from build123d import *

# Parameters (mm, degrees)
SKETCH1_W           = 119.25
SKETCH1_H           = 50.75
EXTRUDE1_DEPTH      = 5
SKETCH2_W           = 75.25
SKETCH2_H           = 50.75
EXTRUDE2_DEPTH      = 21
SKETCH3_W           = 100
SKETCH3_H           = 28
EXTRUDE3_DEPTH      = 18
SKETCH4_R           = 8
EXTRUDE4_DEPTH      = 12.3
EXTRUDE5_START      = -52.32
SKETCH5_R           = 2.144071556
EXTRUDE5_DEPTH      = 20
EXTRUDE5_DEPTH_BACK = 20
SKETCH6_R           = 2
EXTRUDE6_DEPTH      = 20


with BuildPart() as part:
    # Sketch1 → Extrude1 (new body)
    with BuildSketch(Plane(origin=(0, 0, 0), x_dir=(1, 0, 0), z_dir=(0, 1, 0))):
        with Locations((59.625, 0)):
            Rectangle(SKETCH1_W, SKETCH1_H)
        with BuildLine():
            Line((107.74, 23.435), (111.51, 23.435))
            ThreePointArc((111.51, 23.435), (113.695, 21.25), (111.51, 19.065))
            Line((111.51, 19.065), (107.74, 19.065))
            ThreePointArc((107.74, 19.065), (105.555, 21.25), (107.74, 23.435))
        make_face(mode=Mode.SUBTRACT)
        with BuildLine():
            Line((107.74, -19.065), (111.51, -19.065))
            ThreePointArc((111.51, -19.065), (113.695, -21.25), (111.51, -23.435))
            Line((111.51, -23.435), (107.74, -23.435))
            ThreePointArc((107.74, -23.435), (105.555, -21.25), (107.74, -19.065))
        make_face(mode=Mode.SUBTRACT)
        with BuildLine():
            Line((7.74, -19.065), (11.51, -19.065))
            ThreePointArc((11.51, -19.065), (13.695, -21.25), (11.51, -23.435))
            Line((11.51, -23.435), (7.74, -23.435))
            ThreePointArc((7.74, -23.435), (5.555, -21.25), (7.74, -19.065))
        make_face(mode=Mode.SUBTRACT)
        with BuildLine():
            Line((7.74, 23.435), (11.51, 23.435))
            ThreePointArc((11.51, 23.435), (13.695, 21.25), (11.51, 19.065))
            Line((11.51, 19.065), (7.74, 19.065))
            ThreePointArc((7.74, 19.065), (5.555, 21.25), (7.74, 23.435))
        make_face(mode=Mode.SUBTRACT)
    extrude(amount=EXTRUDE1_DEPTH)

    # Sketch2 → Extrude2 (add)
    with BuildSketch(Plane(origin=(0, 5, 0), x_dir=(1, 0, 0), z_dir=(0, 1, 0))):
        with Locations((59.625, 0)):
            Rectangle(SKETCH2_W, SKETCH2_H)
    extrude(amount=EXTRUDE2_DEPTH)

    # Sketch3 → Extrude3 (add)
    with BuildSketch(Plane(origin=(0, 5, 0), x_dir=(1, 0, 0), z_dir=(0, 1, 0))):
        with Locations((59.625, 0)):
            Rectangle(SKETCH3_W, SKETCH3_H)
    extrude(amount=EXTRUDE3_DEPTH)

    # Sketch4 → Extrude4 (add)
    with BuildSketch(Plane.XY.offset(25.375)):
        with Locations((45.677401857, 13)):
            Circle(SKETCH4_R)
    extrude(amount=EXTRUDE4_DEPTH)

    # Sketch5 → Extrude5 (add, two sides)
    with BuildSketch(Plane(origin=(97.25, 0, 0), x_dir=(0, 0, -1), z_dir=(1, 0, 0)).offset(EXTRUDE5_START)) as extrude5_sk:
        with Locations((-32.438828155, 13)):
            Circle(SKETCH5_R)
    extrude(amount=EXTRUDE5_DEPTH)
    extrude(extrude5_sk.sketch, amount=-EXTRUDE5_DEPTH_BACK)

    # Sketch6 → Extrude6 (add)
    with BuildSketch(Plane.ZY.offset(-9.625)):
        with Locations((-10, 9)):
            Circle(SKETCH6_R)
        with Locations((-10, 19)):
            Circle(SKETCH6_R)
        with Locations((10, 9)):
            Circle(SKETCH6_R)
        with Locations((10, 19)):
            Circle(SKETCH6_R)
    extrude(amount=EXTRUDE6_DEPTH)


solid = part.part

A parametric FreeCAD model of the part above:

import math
import FreeCAD as App
import Part
import Sketcher
Q = App.Units.Quantity


def add_polygon(sketch, points):
    """Adds a closed chain of lines whose ends are joined by coincident constraints."""
    first, n = sketch.GeometryCount, len(points)
    for a, b in zip(points, points[1:] + points[:1]):
        sketch.addGeometry(Part.LineSegment(App.Vector(*a, 0), App.Vector(*b, 0)), False)
    for i in range(n):
        sketch.addConstraint(Sketcher.Constraint("Coincident", first + i, 2, first + (i + 1) % n, 1))

doc = App.newDocument("Part")
body = doc.addObject("PartDesign::Body", "Body")

# Sketch on XZ plane
sketch1 = body.newObject("Sketcher::SketchObject", "Sketch")
sketch1.AttachmentSupport = (doc.getObject("XZ_Plane"), [""])
sketch1.MapMode = "FlatFace"
add_polygon(sketch1, [(0, -25.4), (0, 25.4), (119.2, 25.4), (119.2, -25.4)])  # lines 0-3
sketch1.addGeometry(Part.ArcOfCircle(Part.Circle(App.Vector(7.7, 21.2, 0), App.Vector(0, 0, 1), 2.2), math.radians(90), math.radians(270)), False)  # 4
sketch1.addGeometry(Part.LineSegment(App.Vector(7.7, 19.1, 0), App.Vector(11.5, 19.1, 0)), False)  # 5
sketch1.addGeometry(Part.ArcOfCircle(Part.Circle(App.Vector(11.5, 21.2, 0), App.Vector(0, 0, 1), 2.2), math.radians(-90), math.radians(90)), False)  # 6
sketch1.addGeometry(Part.LineSegment(App.Vector(11.5, 23.4, 0), App.Vector(7.7, 23.4, 0)), False)  # 7
sketch1.addGeometry(Part.ArcOfCircle(Part.Circle(App.Vector(107.7, 21.2, 0), App.Vector(0, 0, 1), 2.2), math.radians(90), math.radians(270)), False)  # 8
sketch1.addGeometry(Part.LineSegment(App.Vector(107.7, 19.1, 0), App.Vector(111.5, 19.1, 0)), False)  # 9
sketch1.addGeometry(Part.ArcOfCircle(Part.Circle(App.Vector(111.5, 21.2, 0), App.Vector(0, 0, 1), 2.2), math.radians(-90), math.radians(90)), False)  # 10
sketch1.addGeometry(Part.LineSegment(App.Vector(111.5, 23.4, 0), App.Vector(107.7, 23.4, 0)), False)  # 11
sketch1.addGeometry(Part.ArcOfCircle(Part.Circle(App.Vector(7.7, -21.2, 0), App.Vector(0, 0, 1), 2.2), math.radians(90), math.radians(270)), False)  # 12
sketch1.addGeometry(Part.LineSegment(App.Vector(7.7, -23.4, 0), App.Vector(11.5, -23.4, 0)), False)  # 13
sketch1.addGeometry(Part.ArcOfCircle(Part.Circle(App.Vector(11.5, -21.2, 0), App.Vector(0, 0, 1), 2.2), math.radians(-90), math.radians(90)), False)  # 14
sketch1.addGeometry(Part.LineSegment(App.Vector(11.5, -19.1, 0), App.Vector(7.7, -19.1, 0)), False)  # 15
sketch1.addGeometry(Part.ArcOfCircle(Part.Circle(App.Vector(107.7, -21.2, 0), App.Vector(0, 0, 1), 2.2), math.radians(90), math.radians(270)), False)  # 16
sketch1.addGeometry(Part.LineSegment(App.Vector(107.7, -23.4, 0), App.Vector(111.5, -23.4, 0)), False)  # 17
sketch1.addGeometry(Part.ArcOfCircle(Part.Circle(App.Vector(111.5, -21.2, 0), App.Vector(0, 0, 1), 2.2), math.radians(-90), math.radians(90)), False)  # 18
sketch1.addGeometry(Part.LineSegment(App.Vector(111.5, -19.1, 0), App.Vector(107.7, -19.1, 0)), False)  # 19
sketch1.addConstraint([
    Sketcher.Constraint("Tangent", 4, 2, 5, 1),
    Sketcher.Constraint("Tangent", 5, 2, 6, 1),
    Sketcher.Constraint("Tangent", 6, 2, 7, 1),
    Sketcher.Constraint("Tangent", 7, 2, 4, 1),
    Sketcher.Constraint("Tangent", 8, 2, 9, 1),
    Sketcher.Constraint("Tangent", 9, 2, 10, 1),
    Sketcher.Constraint("Tangent", 10, 2, 11, 1),
    Sketcher.Constraint("Tangent", 11, 2, 8, 1),
    Sketcher.Constraint("Tangent", 12, 2, 13, 1),
    Sketcher.Constraint("Tangent", 13, 2, 14, 1),
    Sketcher.Constraint("Tangent", 14, 2, 15, 1),
    Sketcher.Constraint("Tangent", 15, 2, 12, 1),
    Sketcher.Constraint("Tangent", 16, 2, 17, 1),
    Sketcher.Constraint("Tangent", 17, 2, 18, 1),
    Sketcher.Constraint("Tangent", 18, 2, 19, 1),
    Sketcher.Constraint("Tangent", 19, 2, 16, 1),
    Sketcher.Constraint("Vertical", 0),
    Sketcher.Constraint("Horizontal", 1),
    Sketcher.Constraint("Vertical", 2),
    Sketcher.Constraint("Horizontal", 3),
    Sketcher.Constraint("Horizontal", 5),
    Sketcher.Constraint("Horizontal", 7),
    Sketcher.Constraint("Horizontal", 9),
    Sketcher.Constraint("Horizontal", 11),
    Sketcher.Constraint("Horizontal", 13),
    Sketcher.Constraint("Horizontal", 15),
    Sketcher.Constraint("Horizontal", 17),
    Sketcher.Constraint("Horizontal", 19),
    Sketcher.Constraint("Equal", 6, 8),
    Sketcher.Constraint("Equal", 10, 12),
    Sketcher.Constraint("Equal", 14, 16),
    Sketcher.Constraint("Symmetric", 0, 2, 3, 2, -1, 1),
    Sketcher.Constraint("Symmetric", 4, 3, 12, 3, -1),
    Sketcher.Constraint("Symmetric", 8, 3, 16, 3, -1),
    Sketcher.Constraint("Horizontal", 6, 3, 8, 3),
    Sketcher.Constraint("Vertical", 6, 3, 14, 3),
    Sketcher.Constraint("Vertical", 10, 3, 18, 3),
    Sketcher.Constraint("Equal", 7, 9),
    Sketcher.Constraint("Radius", 4, Q("2.185 mm")),
    Sketcher.Constraint("DistanceX", 4, 3, 8, 3, Q("100 mm")),
    Sketcher.Constraint("DistanceX", 1, 1, 1, 2, Q("119.25 mm")),
    Sketcher.Constraint("DistanceX", 5, 1, 5, 2, Q("3.77 mm")),
    Sketcher.Constraint("DistanceY", 0, 1, 0, 2, Q("50.75 mm")),
    Sketcher.Constraint("DistanceY", 12, 3, 4, 3, Q("42.5 mm")),
    Sketcher.Constraint("DistanceX", -1, 1, 4, 3, Q("7.74 mm")),
])
pad1 = body.newObject("PartDesign::Pad", "Pad")
pad1.Profile = sketch1
pad1.Length = 5
pad1.Reversed = True

# Sketch on XZ plane
sketch2 = body.newObject("Sketcher::SketchObject", "Sketch001")
sketch2.AttachmentSupport = (doc.getObject("XZ_Plane"), [""])
sketch2.MapMode = "FlatFace"
sketch2.AttachmentOffset = App.Placement(App.Vector(0, 0, -5), App.Rotation())
add_polygon(sketch2, [(22, -25), (22, 25), (97, 25), (97, -25)])  # lines 0-3
sketch2.addConstraint([
    Sketcher.Constraint("Vertical", 0),
    Sketcher.Constraint("Horizontal", 1),
    Sketcher.Constraint("Vertical", 2),
    Sketcher.Constraint("Horizontal", 3),
    Sketcher.Constraint("DistanceX", -1, 1, 0, 2, Q("22 mm")),
    Sketcher.Constraint("DistanceX", 1, 1, 1, 2, Q("75.25 mm")),
    Sketcher.Constraint("DistanceY", 0, 1, 0, 2, Q("50.75 mm")),
    Sketcher.Constraint("DistanceY", -1, 1, 0, 2, Q("25.375 mm")),
])
pad2 = body.newObject("PartDesign::Pad", "Pad001")
pad2.Profile = sketch2
pad2.Length = 21
pad2.Reversed = True

# Sketch on XZ plane
sketch3 = body.newObject("Sketcher::SketchObject", "Sketch002")
sketch3.AttachmentSupport = (doc.getObject("XZ_Plane"), [""])
sketch3.MapMode = "FlatFace"
sketch3.AttachmentOffset = App.Placement(App.Vector(0, 0, -5), App.Rotation())
add_polygon(sketch3, [(10, -14), (10, 14), (110, 14), (110, -14)])  # lines 0-3
sketch3.addConstraint([
    Sketcher.Constraint("Vertical", 0),
    Sketcher.Constraint("Horizontal", 1),
    Sketcher.Constraint("Vertical", 2),
    Sketcher.Constraint("Horizontal", 3),
    Sketcher.Constraint("DistanceX", 1, 1, 1, 2, Q("100 mm")),
    Sketcher.Constraint("DistanceY", 0, 1, 0, 2, Q("28 mm")),
    Sketcher.Constraint("DistanceY", -1, 1, 0, 2, Q("14 mm")),
    Sketcher.Constraint("DistanceX", -1, 1, 0, 2, Q("9.625 mm")),
])
pad3 = body.newObject("PartDesign::Pad", "Pad002")
pad3.Profile = sketch3
pad3.Length = 18
pad3.Reversed = True

# Sketch on XY plane
sketch4 = body.newObject("Sketcher::SketchObject", "Sketch003")
sketch4.AttachmentSupport = (doc.getObject("XY_Plane"), [""])
sketch4.MapMode = "FlatFace"
sketch4.AttachmentOffset = App.Placement(App.Vector(0, 0, 25.375), App.Rotation())
sketch4.addGeometry(Part.Circle(App.Vector(46, 13, 0), App.Vector(0, 0, 1), 8), False)
sketch4.addConstraint([
    Sketcher.Constraint("Diameter", 0, Q("16 mm")),
    Sketcher.Constraint("DistanceY", -1, 1, 0, 3, Q("13 mm")),
    Sketcher.Constraint("DistanceX", -1, 1, 0, 3, Q("45.677402 mm")),
])
pad4 = body.newObject("PartDesign::Pad", "Pad003")
pad4.Profile = sketch4
pad4.Length = 12.3

# Sketch on YZ plane
sketch5 = body.newObject("Sketcher::SketchObject", "Sketch004")
sketch5.AttachmentSupport = (doc.getObject("YZ_Plane"), [""])
sketch5.MapMode = "FlatFace"
sketch5.AttachmentOffset = App.Placement(App.Vector(0, 0, 44.93), App.Rotation())
sketch5.addGeometry(Part.Circle(App.Vector(13, 32.4, 0), App.Vector(0, 0, 1), 2.1), False)
sketch5.addConstraint([
    Sketcher.Constraint("DistanceX", -1, 1, 0, 3, Q("13 mm")),
    Sketcher.Constraint("Diameter", 0, Q("4.288143 mm")),
    Sketcher.Constraint("DistanceY", -1, 1, 0, 3, Q("32.438828 mm")),
])
pad5 = body.newObject("PartDesign::Pad", "Pad004")
pad5.Profile = sketch5
pad5.Type = "TwoLengths"
pad5.Length = 20
pad5.Length2 = 20

# Sketch on YZ plane
sketch6 = body.newObject("Sketcher::SketchObject", "Sketch005")
sketch6.AttachmentSupport = (doc.getObject("YZ_Plane"), [""])
sketch6.MapMode = "FlatFace"
sketch6.AttachmentOffset = App.Placement(App.Vector(0, 0, 9.625), App.Rotation())
sketch6.addGeometry([
    Part.Circle(App.Vector(9, -10, 0), App.Vector(0, 0, 1), 2),
    Part.Circle(App.Vector(19, -10, 0), App.Vector(0, 0, 1), 2),
    Part.Circle(App.Vector(9, 10, 0), App.Vector(0, 0, 1), 2),
    Part.Circle(App.Vector(19, 10, 0), App.Vector(0, 0, 1), 2),
], False)
sketch6.addConstraint([
    Sketcher.Constraint("Equal", 0, 1),
    Sketcher.Constraint("Equal", 1, 2),
    Sketcher.Constraint("Equal", 2, 3),
    Sketcher.Constraint("Symmetric", 0, 3, 2, 3, -1),
    Sketcher.Constraint("Symmetric", 1, 3, 3, 3, -1),
    Sketcher.Constraint("Horizontal", 0, 3, 1, 3),
    Sketcher.Constraint("Diameter", 0, Q("4 mm")),
    Sketcher.Constraint("DistanceX", -1, 1, 0, 3, Q("9 mm")),
    Sketcher.Constraint("DistanceY", 0, 3, -1, 1, Q("10 mm")),
    Sketcher.Constraint("DistanceX", -1, 1, 1, 3, Q("19 mm")),
])
pad6 = body.newObject("PartDesign::Pad", "Pad005")
pad6.Profile = sketch6
pad6.Length = 20
pad6.Reversed = True

doc.recompute()
